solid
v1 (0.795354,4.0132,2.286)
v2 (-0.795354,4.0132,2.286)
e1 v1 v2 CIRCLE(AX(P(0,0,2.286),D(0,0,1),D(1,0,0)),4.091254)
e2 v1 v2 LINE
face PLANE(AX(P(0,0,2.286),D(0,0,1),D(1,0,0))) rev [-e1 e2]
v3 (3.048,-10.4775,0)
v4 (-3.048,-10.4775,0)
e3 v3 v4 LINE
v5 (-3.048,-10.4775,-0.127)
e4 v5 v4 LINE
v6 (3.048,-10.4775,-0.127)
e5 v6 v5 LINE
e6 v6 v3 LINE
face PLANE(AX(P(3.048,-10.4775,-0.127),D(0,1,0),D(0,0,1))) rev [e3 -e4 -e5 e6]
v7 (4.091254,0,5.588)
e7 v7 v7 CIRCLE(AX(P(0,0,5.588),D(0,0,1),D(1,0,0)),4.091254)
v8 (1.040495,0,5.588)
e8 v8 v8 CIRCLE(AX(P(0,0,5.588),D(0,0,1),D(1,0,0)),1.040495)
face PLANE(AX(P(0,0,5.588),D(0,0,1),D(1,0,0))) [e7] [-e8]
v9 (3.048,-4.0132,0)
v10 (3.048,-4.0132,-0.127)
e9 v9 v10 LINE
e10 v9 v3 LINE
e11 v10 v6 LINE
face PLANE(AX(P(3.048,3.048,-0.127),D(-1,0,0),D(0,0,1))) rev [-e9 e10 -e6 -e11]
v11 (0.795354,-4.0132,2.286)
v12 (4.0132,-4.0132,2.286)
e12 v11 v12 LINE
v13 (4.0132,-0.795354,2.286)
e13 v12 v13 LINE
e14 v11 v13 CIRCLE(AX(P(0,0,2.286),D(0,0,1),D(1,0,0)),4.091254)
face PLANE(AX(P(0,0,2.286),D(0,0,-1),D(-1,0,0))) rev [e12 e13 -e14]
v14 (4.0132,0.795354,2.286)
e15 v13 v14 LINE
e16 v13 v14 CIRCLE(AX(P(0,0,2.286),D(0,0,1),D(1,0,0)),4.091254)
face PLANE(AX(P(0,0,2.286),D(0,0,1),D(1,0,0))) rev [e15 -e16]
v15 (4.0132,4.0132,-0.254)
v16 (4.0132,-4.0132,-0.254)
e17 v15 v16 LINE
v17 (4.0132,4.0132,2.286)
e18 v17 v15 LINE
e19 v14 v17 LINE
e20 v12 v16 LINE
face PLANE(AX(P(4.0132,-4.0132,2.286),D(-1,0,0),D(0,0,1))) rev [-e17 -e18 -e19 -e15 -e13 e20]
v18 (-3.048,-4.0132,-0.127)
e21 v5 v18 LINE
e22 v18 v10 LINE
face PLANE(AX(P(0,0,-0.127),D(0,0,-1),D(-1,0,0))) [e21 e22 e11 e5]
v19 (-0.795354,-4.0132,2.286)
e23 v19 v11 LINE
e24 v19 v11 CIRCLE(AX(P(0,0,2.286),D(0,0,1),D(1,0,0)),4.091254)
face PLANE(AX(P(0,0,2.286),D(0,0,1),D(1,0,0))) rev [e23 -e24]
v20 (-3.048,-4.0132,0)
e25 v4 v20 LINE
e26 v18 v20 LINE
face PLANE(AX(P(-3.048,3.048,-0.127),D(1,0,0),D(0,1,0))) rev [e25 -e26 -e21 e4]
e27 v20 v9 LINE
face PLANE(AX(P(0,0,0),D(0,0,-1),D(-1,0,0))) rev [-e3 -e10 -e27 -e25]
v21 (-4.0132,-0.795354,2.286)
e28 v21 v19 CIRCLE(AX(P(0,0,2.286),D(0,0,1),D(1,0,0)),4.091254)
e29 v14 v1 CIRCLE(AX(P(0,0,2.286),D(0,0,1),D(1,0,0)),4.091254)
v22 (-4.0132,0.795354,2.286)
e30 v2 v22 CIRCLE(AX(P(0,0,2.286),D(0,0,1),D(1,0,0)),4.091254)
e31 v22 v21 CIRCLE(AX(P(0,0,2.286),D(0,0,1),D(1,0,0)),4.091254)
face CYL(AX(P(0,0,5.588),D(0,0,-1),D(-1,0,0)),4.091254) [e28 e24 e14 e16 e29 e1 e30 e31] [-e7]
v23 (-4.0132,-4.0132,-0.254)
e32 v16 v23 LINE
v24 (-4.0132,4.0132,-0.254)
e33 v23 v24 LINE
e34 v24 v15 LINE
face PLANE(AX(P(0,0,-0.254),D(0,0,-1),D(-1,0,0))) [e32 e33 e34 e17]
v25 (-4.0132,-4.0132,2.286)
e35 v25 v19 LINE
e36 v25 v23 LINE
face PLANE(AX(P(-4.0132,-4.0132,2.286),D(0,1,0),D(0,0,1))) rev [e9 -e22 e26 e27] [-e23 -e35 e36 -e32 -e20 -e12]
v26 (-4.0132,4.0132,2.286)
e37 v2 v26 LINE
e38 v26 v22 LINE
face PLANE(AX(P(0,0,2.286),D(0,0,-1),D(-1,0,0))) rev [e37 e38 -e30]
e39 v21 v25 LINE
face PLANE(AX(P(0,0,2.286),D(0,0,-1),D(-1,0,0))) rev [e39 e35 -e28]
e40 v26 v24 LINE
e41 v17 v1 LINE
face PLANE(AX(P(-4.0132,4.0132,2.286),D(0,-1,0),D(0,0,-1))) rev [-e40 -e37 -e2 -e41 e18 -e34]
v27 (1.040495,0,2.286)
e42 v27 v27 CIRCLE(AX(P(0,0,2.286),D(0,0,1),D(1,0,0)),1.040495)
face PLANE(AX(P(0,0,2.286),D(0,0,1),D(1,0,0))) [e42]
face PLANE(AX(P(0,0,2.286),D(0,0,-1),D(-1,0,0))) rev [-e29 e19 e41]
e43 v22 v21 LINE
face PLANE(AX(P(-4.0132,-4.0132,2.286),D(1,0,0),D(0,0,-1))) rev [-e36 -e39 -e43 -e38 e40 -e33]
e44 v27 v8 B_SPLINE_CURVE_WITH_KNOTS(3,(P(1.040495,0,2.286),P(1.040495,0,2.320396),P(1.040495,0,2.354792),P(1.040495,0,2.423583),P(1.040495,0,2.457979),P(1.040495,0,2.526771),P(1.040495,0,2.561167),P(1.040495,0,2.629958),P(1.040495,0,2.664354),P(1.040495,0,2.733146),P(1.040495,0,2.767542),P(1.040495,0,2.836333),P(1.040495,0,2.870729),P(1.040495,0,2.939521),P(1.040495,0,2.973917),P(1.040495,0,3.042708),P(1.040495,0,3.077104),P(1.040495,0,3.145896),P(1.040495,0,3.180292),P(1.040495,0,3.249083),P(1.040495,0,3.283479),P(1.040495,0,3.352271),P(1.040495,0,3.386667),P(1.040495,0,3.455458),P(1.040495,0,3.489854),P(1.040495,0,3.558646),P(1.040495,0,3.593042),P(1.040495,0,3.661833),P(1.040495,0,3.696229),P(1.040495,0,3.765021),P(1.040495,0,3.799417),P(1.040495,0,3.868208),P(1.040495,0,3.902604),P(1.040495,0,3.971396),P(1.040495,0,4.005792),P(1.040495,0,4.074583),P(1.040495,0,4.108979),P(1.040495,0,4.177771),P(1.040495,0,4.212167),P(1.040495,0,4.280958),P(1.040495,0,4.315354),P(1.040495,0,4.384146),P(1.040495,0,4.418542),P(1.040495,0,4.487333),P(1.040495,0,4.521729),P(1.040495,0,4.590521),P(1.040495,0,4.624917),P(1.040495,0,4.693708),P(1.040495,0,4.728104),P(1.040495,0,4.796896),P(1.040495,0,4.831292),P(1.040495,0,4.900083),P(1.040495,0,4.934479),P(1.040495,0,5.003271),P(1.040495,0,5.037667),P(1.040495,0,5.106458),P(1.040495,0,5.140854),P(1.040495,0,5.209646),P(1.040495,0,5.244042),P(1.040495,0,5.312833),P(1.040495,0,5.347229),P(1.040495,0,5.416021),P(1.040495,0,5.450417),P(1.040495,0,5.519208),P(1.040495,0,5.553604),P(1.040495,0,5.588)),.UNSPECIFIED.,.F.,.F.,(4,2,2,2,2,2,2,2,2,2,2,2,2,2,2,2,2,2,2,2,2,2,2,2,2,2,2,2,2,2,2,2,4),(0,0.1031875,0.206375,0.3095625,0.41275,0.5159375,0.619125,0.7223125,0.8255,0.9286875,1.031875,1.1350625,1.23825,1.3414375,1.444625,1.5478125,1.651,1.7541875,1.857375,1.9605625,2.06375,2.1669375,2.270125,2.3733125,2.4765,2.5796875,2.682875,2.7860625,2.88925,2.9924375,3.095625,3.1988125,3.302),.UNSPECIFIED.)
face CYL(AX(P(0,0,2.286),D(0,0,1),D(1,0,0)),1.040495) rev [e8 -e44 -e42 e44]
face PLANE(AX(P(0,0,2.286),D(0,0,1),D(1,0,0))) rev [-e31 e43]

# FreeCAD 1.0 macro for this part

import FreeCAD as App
import Part
import Sketcher
from FreeCAD import Vector
Q = App.Units.Quantity


def add_polygon(sketch, points):
    """Adds a closed chain of lines whose ends are joined by coincident constraints."""
    first, n = sketch.GeometryCount, len(points)
    for a, b in zip(points, points[1:] + points[:1]):
        sketch.addGeometry(Part.LineSegment(App.Vector(*a, 0), App.Vector(*b, 0)), False)
    for i in range(n):
        sketch.addConstraint(Sketcher.Constraint("Coincident", first + i, 2, first + (i + 1) % n, 1))

doc = App.newDocument("Part")
body = doc.addObject("PartDesign::Body", "Body")

sketch1 = doc.addObject("Sketcher::SketchObject", "Sketch")
body.addObject(sketch1)
sketch1.AttachmentSupport = (doc.XY_Plane, [""])
sketch1.MapMode = "FlatFace"
add_polygon(sketch1, [(-4, 4), (-4, -4), (4, -4), (4, 4)])
sketch1.addConstraint([
    Sketcher.Constraint("Vertical", 0),
    Sketcher.Constraint("Horizontal", 1),
    Sketcher.Constraint("Vertical", 2),
    Sketcher.Constraint("Horizontal", 3),
    Sketcher.Constraint("Symmetric", 0, 2, 2, 2, -1, 1),
    Sketcher.Constraint("Equal", 3, 0),
    Sketcher.Constraint("DistanceX", 1, 1, 1, 2, Q("0.316 in")),
])
pad1 = doc.addObject("PartDesign::Pad", "Pad")
body.addObject(pad1)
pad1.Profile = sketch1
pad1.Length = Q("0.09 in")

sketch2 = doc.addObject("Sketcher::SketchObject", "Sketch001")
body.addObject(sketch2)
sketch2.AttachmentSupport = (doc.XY_Plane, [""])
sketch2.MapMode = "FlatFace"
sketch2.AttachmentOffset = App.Placement(Vector(0, 0, 0.09 * 25.4), App.Rotation())
sketch2.addGeometry(Part.Circle(Vector(0, 0, 0), Vector(0, 0, 1), 4.1), False)
sketch2.addConstraint([
    Sketcher.Constraint("Coincident", 0, 3, -1, 1),
    Sketcher.Constraint("Diameter", 0, 8.182509),
])
pad2 = doc.addObject("PartDesign::Pad", "Pad001")
body.addObject(pad2)
pad2.Profile = sketch2
pad2.Length = Q("0.13 in")

sketch3 = doc.addObject("Sketcher::SketchObject", "Sketch002")
body.addObject(sketch3)
sketch3.AttachmentSupport = (doc.XY_Plane, [""])
sketch3.MapMode = "FlatFace"
sketch3.AttachmentOffset = App.Placement(Vector(0, 0, 0.22 * 25.4), App.Rotation())
sketch3.addGeometry(Part.Circle(Vector(0, 0, 0), Vector(0, 0, 1), 1), False)
sketch3.addConstraint([
    Sketcher.Constraint("Coincident", 0, 3, -1, 1),
    Sketcher.Constraint("Diameter", 0, 2.080989),
])
pocket1 = doc.addObject("PartDesign::Pocket", "Pocket")
body.addObject(pocket1)
pocket1.Profile = sketch3
pocket1.Length = Q("0.13 in")

sketch4 = doc.addObject("Sketcher::SketchObject", "Sketch003")
body.addObject(sketch4)
sketch4.AttachmentSupport = (doc.XY_Plane, [""])
sketch4.MapMode = "FlatFace"
add_polygon(sketch4, [(3, 3), (3, -10), (-3, -10), (-3, 3)])
sketch4.addConstraint([
    Sketcher.Constraint("Vertical", 0),
    Sketcher.Constraint("Horizontal", 1),
    Sketcher.Constraint("Vertical", 2),
    Sketcher.Constraint("Horizontal", 3),
    Sketcher.Constraint("DistanceX", 1, 2, 1, 1, Q("0.24 in")),
    Sketcher.Constraint("DistanceX", -1, 1, 0, 2, Q("0.12 in")),
    Sketcher.Constraint("DistanceY", -1, 1, 2, 2, Q("0.12 in")),
    Sketcher.Constraint("DistanceY", 0, 2, 0, 1, Q("0.5325 in")),
])
pad3 = doc.addObject("PartDesign::Pad", "Pad002")
body.addObject(pad3)
pad3.Profile = sketch4
pad3.Length = Q("0.005 in")
pad3.Reversed = True

sketch5 = doc.addObject("Sketcher::SketchObject", "Sketch004")
body.addObject(sketch5)
sketch5.AttachmentSupport = (doc.XY_Plane, [""])
sketch5.MapMode = "FlatFace"
add_polygon(sketch5, [(4, 4), (4, -4), (-4, -4), (-4, 4)])
sketch5.addConstraint([
    Sketcher.Constraint("Vertical", 0),
    Sketcher.Constraint("Horizontal", 1),
    Sketcher.Constraint("Vertical", 2),
    Sketcher.Constraint("Horizontal", 3),
    Sketcher.Constraint("Symmetric", 0, 2, 2, 2, -1, 1),
    Sketcher.Constraint("Equal", 3, 0),
    Sketcher.Constraint("DistanceX", 1, 2, 1, 1, Q("0.316 in")),
])
pad4 = doc.addObject("PartDesign::Pad", "Pad003")
body.addObject(pad4)
pad4.Profile = sketch5
pad4.Length = Q("0.01 in")
pad4.Reversed = True

doc.recompute()
